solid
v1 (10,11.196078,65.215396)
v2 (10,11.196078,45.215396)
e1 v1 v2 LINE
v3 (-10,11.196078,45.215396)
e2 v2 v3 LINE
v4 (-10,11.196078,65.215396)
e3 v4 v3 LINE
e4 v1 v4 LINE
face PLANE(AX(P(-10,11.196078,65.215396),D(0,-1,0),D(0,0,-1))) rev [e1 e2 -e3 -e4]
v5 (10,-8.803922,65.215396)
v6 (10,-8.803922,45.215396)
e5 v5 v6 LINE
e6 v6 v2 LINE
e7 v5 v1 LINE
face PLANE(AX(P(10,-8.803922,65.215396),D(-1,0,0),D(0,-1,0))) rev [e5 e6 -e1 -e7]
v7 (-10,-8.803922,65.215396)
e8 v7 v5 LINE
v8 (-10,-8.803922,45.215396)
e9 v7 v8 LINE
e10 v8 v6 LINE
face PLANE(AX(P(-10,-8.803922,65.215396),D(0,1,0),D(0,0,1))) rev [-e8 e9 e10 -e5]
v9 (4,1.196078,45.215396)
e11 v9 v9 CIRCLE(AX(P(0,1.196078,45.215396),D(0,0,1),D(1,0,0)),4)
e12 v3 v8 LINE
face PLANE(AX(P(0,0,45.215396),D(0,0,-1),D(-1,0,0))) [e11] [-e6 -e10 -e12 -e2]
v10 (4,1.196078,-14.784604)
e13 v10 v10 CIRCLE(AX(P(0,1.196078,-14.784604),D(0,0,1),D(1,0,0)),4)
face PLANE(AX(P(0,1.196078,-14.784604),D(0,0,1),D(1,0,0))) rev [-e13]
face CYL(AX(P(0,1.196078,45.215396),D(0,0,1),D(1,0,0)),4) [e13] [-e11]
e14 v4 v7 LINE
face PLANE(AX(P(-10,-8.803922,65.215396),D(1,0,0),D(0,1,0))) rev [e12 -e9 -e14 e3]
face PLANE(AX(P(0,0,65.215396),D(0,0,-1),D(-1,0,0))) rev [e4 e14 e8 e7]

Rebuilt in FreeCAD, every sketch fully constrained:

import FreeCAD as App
import Part
import Sketcher

doc = App.newDocument("Part")
body = doc.addObject("PartDesign::Body", "Body")

sketch1 = body.newObject("Sketcher::SketchObject", "Sketch")
sketch1.AttachmentSupport = (doc.getObject("YZ_Plane"), [""])
sketch1.MapMode = "FlatFace"
sketch1.addGeometry([
    Part.LineSegment(App.Vector(5.2, 45.2, 0), App.Vector(1.2, 45.2, 0)),
    Part.LineSegment(App.Vector(1.2, 45.2, 0), App.Vector(1.2, -14.8, 0)),
    Part.LineSegment(App.Vector(1.2, -14.8, 0), App.Vector(5.2, -14.8, 0)),
    Part.LineSegment(App.Vector(5.2, -14.8, 0), App.Vector(5.2, 45.2, 0)),
], False)
sketch1.addGeometry(Part.LineSegment(App.Vector(1.2, 45.2, 0), App.Vector(1.2, -14.8, 0)), True)
sketch1.addConstraint([
    Sketcher.Constraint("Coincident", 0, 2, 1, 1),
    Sketcher.Constraint("Coincident", 1, 2, 2, 1),
    Sketcher.Constraint("Coincident", 2, 2, 3, 1),
    Sketcher.Constraint("Coincident", 3, 2, 0, 1),
    Sketcher.Constraint("Horizontal", 0),
    Sketcher.Constraint("Vertical", 1),
    Sketcher.Constraint("Horizontal", 2),
    Sketcher.Constraint("Vertical", 3),
    Sketcher.Constraint("Vertical", 4),
    Sketcher.Constraint("Coincident", 4, 1, 0, 2),
    Sketcher.Constraint("Horizontal", 2, 2, 4, 2),
    Sketcher.Constraint("DistanceX", 0, 2, 0, 1, 4.0),
    Sketcher.Constraint("DistanceY", 1, 2, 1, 1, 60.0),
    Sketcher.Constraint("DistanceX", -1, 1, 0, 2, 1.196078),
    Sketcher.Constraint("DistanceY", -1, 1, 0, 2, 45.215396),
])
revolution = body.newObject("PartDesign::Revolution", "Revolution")
revolution.Profile = sketch1
revolution.ReferenceAxis = (sketch1, ["Axis0"])
revolution.Angle = 360

sketch2 = body.newObject("Sketcher::SketchObject", "Sketch001")
sketch2.AttachmentSupport = (doc.getObject("XY_Plane"), [""])
sketch2.MapMode = "FlatFace"
sketch2.AttachmentOffset = App.Placement(App.Vector(0, 0, 45.215396), App.Rotation())
sketch2.addGeometry([
    Part.LineSegment(App.Vector(-10, 11, 0), App.Vector(-10, -9, 0)),
    Part.LineSegment(App.Vector(-10, -9, 0), App.Vector(10, -9, 0)),
    Part.LineSegment(App.Vector(10, -9, 0), App.Vector(10, 11, 0)),
    Part.LineSegment(App.Vector(10, 11, 0), App.Vector(-10, 11, 0)),
], False)
sketch2.addConstraint([
    Sketcher.Constraint("Coincident", 0, 2, 1, 1),
    Sketcher.Constraint("Coincident", 1, 2, 2, 1),
    Sketcher.Constraint("Coincident", 2, 2, 3, 1),
    Sketcher.Constraint("Coincident", 3, 2, 0, 1),
    Sketcher.Constraint("Vertical", 0),
    Sketcher.Constraint("Horizontal", 1),
    Sketcher.Constraint("Vertical", 2),
    Sketcher.Constraint("Horizontal", 3),
    Sketcher.Constraint("Equal", 3, 0),
    Sketcher.Constraint("DistanceX", 1, 1, 1, 2, 20.0),
    Sketcher.Constraint("DistanceX", 0, 2, -1, 1, 10.0),
    Sketcher.Constraint("DistanceY", 0, 2, -1, 1, 8.803922),
])
pad1 = body.newObject("PartDesign::Pad", "Pad")
pad1.Profile = sketch2
pad1.Length = 20

doc.recompute()
